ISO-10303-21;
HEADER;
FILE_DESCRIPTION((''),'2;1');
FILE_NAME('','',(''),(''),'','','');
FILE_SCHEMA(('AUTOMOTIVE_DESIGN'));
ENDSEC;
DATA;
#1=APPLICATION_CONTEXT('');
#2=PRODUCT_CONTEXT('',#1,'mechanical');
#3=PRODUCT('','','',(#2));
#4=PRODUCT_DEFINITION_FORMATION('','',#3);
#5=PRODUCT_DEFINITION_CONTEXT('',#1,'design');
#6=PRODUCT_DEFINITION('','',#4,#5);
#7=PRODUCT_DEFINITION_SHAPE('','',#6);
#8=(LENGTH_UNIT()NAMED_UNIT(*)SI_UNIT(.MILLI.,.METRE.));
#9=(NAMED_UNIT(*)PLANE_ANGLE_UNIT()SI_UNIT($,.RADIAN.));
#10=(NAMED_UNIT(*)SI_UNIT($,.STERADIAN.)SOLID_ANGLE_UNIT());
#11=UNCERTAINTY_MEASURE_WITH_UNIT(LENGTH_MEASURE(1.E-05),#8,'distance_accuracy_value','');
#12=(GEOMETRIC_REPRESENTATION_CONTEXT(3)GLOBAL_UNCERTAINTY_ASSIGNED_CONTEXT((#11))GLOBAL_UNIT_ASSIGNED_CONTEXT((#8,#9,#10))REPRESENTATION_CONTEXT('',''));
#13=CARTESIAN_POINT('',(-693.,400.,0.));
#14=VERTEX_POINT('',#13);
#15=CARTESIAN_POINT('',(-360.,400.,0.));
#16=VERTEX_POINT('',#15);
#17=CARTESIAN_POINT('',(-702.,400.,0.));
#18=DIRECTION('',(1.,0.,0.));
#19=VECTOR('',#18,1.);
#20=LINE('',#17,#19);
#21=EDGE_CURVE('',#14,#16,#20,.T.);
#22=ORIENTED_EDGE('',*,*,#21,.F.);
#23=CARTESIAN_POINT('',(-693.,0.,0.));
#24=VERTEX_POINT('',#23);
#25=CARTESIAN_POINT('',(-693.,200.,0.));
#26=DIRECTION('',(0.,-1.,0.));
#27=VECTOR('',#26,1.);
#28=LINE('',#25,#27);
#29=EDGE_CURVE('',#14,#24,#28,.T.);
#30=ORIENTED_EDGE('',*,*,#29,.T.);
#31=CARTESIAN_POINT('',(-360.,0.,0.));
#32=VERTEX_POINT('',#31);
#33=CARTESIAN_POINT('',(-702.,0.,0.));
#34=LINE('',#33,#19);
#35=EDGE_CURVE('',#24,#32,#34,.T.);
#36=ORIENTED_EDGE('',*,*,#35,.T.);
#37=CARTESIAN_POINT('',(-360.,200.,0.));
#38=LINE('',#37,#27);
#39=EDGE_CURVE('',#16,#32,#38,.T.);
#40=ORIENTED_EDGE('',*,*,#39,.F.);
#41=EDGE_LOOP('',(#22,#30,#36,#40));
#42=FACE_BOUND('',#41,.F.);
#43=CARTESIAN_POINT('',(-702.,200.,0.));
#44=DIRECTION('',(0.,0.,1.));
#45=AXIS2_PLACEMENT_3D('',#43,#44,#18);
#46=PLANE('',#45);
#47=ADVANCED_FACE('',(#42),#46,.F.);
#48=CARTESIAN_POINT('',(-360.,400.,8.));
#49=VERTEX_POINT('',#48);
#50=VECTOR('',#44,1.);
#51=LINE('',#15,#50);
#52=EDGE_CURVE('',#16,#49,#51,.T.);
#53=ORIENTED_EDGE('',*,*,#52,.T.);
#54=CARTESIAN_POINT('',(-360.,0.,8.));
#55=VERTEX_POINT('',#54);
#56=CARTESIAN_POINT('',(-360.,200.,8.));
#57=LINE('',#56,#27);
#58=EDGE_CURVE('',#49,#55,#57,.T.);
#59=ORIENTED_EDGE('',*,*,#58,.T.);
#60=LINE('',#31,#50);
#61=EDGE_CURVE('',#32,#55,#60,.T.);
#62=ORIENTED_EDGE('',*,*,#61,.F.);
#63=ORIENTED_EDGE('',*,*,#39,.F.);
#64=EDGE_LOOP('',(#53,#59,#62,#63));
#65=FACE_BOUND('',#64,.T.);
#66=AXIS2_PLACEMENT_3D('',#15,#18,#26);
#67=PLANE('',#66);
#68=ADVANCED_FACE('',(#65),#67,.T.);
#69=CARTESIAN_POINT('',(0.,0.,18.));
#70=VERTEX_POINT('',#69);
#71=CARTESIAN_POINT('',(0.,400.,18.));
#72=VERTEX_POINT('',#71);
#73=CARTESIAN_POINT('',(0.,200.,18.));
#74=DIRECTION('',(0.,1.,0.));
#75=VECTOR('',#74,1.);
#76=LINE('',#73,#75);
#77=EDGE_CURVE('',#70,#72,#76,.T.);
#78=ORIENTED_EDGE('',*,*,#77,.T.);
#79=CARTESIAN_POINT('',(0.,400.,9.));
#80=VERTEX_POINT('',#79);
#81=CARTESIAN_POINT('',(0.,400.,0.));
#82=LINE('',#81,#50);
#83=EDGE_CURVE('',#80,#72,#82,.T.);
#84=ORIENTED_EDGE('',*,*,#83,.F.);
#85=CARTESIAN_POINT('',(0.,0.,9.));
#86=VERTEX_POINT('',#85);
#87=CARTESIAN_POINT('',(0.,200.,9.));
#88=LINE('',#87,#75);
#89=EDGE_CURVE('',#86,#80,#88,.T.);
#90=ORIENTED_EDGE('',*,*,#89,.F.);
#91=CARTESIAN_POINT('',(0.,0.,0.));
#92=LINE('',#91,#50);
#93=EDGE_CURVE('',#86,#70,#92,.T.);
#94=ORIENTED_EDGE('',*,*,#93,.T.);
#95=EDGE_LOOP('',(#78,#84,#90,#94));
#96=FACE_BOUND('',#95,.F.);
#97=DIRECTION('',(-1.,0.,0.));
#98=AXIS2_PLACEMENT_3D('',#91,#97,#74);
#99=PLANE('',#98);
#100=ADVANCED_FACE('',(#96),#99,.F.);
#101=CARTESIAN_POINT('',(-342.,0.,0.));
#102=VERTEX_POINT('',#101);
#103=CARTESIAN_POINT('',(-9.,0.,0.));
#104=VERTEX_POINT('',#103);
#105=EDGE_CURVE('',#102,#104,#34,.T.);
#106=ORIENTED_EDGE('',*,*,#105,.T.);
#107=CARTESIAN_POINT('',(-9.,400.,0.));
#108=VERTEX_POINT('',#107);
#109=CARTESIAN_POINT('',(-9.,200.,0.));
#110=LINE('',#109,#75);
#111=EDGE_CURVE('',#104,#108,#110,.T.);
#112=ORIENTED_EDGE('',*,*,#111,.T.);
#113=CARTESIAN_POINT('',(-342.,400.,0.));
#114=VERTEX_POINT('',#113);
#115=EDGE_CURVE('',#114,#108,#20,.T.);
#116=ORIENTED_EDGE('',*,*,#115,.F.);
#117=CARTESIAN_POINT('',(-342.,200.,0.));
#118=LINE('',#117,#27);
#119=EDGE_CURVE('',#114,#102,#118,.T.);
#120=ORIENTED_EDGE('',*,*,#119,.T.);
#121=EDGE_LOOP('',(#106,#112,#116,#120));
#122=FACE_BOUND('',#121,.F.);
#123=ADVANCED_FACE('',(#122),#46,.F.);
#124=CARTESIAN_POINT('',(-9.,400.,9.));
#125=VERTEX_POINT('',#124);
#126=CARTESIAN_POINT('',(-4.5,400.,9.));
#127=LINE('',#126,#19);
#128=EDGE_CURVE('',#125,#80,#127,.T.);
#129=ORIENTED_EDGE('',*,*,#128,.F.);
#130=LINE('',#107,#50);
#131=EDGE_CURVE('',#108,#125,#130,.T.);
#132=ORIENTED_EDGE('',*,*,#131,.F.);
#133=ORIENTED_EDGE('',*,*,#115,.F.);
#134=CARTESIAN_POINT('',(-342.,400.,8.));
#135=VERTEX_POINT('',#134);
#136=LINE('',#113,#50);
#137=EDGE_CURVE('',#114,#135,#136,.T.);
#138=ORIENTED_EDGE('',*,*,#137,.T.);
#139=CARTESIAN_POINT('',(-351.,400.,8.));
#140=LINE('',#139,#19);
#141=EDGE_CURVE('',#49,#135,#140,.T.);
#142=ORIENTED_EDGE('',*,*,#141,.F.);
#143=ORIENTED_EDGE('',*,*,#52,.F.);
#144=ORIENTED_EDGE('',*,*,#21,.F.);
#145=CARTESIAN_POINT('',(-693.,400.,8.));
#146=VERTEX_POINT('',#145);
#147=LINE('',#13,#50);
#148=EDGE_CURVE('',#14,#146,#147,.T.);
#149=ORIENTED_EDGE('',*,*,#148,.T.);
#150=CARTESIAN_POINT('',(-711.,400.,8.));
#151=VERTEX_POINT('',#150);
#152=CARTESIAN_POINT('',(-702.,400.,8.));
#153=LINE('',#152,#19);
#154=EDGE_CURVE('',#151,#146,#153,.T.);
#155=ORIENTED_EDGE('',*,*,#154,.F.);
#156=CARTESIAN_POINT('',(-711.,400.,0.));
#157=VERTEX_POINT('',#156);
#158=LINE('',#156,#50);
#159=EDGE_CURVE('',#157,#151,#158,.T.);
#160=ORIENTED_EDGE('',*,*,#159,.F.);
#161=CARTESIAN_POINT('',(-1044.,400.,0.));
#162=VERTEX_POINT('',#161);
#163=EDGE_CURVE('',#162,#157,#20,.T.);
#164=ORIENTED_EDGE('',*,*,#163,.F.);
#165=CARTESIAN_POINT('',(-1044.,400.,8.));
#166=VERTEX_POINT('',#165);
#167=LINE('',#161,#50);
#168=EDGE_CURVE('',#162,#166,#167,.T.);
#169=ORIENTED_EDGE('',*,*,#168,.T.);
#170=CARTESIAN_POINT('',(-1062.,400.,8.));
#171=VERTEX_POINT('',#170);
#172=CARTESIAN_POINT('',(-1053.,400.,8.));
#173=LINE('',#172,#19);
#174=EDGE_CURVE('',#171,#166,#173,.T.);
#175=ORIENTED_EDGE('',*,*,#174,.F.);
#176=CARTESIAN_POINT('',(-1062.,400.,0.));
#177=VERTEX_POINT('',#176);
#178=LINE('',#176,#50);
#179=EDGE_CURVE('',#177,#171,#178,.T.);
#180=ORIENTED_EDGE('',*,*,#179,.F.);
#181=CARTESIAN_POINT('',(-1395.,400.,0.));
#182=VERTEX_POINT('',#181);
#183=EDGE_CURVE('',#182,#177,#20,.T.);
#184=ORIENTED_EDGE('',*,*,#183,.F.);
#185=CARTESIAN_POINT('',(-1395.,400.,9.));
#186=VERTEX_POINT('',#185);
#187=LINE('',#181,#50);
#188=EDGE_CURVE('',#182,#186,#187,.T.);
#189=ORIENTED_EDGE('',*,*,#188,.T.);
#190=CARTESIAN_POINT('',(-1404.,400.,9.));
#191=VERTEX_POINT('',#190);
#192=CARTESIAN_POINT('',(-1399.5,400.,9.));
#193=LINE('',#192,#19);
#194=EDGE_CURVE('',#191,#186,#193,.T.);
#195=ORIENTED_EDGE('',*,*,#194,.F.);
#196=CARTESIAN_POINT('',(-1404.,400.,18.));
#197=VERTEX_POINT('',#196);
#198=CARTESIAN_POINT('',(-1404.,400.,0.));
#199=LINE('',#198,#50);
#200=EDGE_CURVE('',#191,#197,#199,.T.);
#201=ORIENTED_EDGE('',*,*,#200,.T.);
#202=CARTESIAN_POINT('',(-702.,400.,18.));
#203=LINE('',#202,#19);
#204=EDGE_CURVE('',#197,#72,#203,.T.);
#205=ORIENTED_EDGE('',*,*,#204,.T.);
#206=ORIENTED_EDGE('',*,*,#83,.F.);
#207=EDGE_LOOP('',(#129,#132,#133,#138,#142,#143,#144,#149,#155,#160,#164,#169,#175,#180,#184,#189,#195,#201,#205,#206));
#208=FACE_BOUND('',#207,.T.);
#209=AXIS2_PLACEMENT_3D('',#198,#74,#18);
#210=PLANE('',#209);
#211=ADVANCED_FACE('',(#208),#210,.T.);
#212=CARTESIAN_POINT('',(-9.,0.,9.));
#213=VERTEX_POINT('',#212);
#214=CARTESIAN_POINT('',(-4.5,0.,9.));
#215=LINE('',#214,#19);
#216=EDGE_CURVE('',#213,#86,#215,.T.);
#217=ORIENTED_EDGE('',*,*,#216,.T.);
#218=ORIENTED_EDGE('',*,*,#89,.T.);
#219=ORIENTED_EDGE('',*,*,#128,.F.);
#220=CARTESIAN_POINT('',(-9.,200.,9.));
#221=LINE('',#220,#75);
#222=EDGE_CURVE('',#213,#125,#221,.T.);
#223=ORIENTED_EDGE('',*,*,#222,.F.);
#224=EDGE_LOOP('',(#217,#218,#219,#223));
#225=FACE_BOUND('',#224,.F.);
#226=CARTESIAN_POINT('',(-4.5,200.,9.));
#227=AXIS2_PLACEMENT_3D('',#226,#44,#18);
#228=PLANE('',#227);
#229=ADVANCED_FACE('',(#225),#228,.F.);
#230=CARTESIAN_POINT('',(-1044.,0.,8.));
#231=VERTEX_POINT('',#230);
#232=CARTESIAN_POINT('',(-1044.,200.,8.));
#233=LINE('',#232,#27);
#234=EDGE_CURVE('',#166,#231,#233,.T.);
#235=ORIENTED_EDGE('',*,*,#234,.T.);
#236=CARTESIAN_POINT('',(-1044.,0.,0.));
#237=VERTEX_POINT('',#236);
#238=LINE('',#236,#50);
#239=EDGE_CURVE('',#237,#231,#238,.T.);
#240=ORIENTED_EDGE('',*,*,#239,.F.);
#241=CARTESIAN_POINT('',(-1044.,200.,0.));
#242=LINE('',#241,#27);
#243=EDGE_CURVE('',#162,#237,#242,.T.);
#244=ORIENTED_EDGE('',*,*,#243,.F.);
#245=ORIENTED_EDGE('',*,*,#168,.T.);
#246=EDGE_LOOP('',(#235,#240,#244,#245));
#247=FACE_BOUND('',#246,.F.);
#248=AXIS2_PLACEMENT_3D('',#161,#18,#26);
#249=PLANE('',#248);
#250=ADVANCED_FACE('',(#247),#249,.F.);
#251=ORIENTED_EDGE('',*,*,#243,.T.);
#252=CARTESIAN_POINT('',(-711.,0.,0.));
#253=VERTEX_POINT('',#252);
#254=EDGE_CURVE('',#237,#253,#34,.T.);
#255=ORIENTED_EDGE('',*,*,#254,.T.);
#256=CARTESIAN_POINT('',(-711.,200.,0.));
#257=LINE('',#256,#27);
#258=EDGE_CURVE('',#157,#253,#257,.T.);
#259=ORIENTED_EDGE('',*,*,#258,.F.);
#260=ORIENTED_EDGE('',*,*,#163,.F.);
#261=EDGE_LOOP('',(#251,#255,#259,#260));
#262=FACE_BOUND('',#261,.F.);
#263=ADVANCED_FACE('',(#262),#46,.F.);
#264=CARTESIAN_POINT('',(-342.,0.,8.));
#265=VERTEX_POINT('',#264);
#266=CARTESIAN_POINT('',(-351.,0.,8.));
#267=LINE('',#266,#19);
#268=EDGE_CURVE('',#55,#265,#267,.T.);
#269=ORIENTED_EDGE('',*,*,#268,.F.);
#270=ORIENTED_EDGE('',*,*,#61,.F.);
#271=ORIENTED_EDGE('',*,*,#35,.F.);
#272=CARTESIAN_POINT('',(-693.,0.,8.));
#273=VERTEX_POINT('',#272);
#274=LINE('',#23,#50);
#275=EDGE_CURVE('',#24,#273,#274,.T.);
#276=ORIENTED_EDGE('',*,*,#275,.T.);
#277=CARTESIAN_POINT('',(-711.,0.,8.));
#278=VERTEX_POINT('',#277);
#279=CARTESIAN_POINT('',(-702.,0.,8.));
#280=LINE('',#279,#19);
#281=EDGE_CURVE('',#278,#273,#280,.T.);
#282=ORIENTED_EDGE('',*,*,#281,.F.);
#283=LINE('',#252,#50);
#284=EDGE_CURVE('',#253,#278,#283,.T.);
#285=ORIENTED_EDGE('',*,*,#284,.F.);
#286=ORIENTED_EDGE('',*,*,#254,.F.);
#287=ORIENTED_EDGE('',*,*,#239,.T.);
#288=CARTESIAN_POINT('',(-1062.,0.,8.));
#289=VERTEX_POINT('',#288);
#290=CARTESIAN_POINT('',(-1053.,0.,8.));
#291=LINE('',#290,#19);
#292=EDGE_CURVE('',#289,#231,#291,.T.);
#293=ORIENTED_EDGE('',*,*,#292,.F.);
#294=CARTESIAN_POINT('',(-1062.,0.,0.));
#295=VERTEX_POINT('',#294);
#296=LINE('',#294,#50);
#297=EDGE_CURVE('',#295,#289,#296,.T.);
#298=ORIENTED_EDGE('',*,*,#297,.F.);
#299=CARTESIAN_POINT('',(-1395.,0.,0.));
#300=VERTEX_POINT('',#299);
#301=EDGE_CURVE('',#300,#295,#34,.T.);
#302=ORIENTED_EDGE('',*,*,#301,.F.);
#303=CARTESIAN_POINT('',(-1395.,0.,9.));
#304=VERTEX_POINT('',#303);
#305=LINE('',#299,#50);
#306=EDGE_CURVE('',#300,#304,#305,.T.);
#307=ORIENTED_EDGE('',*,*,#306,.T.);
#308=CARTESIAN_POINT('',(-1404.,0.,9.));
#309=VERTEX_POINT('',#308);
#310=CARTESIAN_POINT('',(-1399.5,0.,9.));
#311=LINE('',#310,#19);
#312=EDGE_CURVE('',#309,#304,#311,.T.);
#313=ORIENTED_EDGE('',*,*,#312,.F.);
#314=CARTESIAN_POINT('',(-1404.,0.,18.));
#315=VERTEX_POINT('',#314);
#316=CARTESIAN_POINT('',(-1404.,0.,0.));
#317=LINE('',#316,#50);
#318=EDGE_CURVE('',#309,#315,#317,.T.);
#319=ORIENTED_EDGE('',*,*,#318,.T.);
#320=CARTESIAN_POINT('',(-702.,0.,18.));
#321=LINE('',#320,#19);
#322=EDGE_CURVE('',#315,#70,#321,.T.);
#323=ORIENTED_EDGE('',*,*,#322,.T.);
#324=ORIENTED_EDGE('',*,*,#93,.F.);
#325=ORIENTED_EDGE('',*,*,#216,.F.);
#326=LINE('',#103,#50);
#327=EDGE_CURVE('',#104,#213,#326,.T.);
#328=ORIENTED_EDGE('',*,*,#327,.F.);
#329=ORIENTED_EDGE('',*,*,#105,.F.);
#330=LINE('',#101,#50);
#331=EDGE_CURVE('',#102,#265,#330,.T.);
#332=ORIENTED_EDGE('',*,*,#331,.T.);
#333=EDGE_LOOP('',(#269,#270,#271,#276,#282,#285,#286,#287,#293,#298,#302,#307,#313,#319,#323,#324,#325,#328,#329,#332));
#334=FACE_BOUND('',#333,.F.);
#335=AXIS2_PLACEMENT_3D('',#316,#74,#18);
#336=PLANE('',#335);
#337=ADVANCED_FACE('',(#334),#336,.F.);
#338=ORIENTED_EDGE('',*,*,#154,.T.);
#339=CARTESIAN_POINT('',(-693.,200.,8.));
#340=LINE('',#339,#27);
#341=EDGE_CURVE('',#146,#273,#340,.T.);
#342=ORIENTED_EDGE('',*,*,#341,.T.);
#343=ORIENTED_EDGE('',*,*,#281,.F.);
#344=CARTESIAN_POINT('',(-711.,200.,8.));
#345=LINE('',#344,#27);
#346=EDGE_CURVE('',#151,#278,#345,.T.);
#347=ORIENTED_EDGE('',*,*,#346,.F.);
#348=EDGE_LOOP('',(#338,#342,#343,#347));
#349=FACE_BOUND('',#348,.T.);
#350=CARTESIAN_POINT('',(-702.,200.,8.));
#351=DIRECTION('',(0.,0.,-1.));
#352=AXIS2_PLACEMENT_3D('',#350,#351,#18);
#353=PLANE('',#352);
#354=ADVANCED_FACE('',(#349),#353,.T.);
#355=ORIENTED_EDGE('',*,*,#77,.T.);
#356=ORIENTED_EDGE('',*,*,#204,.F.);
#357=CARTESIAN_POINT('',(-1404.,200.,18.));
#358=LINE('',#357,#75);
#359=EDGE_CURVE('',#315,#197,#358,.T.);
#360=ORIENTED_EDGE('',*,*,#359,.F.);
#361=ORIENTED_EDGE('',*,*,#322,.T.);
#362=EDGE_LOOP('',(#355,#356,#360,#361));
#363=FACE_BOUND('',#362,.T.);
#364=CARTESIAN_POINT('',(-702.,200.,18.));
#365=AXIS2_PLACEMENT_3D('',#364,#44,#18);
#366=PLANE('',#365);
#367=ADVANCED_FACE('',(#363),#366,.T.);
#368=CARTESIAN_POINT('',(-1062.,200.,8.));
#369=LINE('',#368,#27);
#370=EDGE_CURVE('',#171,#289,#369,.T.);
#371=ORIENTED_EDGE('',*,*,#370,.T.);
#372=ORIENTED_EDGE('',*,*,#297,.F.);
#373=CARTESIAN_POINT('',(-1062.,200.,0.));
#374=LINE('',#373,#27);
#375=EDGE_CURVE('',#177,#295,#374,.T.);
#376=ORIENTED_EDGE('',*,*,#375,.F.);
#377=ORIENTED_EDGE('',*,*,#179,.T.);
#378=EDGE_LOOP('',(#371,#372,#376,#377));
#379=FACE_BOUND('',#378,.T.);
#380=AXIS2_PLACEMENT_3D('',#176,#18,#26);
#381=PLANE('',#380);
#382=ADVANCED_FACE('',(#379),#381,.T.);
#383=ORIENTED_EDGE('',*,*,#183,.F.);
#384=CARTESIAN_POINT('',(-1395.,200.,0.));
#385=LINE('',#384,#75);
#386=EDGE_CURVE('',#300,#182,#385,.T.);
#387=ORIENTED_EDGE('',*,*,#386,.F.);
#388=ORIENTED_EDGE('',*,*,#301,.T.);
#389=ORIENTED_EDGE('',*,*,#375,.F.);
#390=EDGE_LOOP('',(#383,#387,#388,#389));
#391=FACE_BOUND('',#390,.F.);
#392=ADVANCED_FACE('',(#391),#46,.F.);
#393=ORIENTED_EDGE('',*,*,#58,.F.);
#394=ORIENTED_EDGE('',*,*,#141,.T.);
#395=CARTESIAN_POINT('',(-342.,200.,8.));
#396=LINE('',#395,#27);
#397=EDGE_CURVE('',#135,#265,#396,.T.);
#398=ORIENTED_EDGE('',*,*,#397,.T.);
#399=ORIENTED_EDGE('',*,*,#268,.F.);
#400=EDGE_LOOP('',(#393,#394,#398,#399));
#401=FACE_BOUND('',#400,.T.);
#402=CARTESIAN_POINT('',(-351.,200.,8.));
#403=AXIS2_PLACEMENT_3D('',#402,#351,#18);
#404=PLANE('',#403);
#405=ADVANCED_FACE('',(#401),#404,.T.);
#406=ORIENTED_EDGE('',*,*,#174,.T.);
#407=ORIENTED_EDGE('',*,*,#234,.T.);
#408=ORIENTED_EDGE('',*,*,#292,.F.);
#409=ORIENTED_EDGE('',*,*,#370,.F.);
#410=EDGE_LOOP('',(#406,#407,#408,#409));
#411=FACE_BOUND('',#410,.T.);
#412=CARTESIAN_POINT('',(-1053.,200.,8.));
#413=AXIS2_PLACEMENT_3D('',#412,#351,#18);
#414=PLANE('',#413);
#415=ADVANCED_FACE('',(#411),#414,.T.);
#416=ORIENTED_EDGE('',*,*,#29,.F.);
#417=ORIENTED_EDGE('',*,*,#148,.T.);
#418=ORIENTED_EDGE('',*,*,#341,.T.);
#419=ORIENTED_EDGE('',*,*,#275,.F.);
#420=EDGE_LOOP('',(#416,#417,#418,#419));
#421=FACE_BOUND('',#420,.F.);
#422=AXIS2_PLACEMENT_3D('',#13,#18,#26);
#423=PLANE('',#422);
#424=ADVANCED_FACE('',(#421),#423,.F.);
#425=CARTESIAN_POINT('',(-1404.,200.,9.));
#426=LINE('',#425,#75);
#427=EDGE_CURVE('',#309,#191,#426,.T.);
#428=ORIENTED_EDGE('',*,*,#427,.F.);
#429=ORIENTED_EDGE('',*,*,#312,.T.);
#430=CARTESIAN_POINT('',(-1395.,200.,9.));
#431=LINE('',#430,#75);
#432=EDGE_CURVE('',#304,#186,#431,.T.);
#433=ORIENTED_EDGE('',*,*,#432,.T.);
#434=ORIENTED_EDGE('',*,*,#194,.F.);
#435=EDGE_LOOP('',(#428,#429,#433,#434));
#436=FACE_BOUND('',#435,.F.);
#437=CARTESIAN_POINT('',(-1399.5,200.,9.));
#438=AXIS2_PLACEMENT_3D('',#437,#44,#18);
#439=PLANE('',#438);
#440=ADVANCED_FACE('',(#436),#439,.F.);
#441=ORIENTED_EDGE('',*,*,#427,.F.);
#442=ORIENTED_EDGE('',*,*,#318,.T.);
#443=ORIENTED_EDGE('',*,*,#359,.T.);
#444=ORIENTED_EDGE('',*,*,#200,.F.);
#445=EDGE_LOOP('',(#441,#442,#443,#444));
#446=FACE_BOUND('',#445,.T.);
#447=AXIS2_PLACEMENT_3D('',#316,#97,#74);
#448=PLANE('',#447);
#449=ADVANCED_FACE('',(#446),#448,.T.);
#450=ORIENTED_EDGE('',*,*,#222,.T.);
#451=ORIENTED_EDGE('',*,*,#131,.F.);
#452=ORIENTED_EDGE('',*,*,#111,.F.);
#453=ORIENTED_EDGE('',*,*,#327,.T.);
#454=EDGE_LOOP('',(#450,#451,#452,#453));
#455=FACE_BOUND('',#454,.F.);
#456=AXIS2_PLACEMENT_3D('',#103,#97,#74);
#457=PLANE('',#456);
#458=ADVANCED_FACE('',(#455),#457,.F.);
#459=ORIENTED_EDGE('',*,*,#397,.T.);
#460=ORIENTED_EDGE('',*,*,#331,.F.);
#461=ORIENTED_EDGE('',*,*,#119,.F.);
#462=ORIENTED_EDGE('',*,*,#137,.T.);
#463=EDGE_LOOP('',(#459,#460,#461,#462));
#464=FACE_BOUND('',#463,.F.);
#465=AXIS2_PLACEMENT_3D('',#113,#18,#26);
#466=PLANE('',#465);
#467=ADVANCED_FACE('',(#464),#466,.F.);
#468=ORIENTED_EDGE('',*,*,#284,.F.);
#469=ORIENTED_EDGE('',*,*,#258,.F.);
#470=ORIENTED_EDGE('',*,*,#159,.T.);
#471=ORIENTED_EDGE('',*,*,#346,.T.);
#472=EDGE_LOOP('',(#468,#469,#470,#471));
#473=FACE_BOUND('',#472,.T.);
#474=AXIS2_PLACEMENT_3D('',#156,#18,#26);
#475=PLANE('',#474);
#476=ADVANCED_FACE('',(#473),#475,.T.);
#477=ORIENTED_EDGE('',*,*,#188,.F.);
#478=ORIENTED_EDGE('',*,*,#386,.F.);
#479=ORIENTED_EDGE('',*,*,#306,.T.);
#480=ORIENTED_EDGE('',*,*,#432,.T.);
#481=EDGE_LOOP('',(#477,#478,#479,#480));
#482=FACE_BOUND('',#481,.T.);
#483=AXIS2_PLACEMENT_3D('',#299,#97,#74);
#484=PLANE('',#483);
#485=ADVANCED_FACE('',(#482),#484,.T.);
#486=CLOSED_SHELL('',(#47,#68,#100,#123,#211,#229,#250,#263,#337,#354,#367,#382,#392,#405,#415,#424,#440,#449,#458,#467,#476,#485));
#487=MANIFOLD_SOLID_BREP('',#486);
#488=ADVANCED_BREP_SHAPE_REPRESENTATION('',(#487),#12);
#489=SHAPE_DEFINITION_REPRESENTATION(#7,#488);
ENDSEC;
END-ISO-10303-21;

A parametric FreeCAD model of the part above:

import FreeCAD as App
import Part
import Sketcher


def add_polygon(sketch, points):
    """Adds a closed chain of lines whose ends are joined by coincident constraints."""
    first, n = sketch.GeometryCount, len(points)
    for a, b in zip(points, points[1:] + points[:1]):
        sketch.addGeometry(Part.LineSegment(App.Vector(*a, 0), App.Vector(*b, 0)), False)
    for i in range(n):
        sketch.addConstraint(Sketcher.Constraint("Coincident", first + i, 2, first + (i + 1) % n, 1))

doc = App.newDocument("Part")
body = doc.addObject("PartDesign::Body", "Body")

sketch1 = body.newObject("Sketcher::SketchObject", "Sketch")
sketch1.AttachmentSupport = (doc.getObject("XY_Plane"), [""])
sketch1.MapMode = "FlatFace"
add_polygon(sketch1, [(-1404, 400), (-1404, 0), (0, 0), (0, 400)])
sketch1.addConstraint([
    Sketcher.Constraint("Vertical", 0),
    Sketcher.Constraint("Horizontal", 1),
    Sketcher.Constraint("Vertical", 2),
    Sketcher.Constraint("Horizontal", 3),
    Sketcher.Constraint("Coincident", 1, 2, -1, 1),
    Sketcher.Constraint("DistanceX", 1, 1, 1, 2, 1404.0),
    Sketcher.Constraint("DistanceY", 0, 2, 0, 1, 400.0),
])
pad1 = body.newObject("PartDesign::Pad", "Pad")
pad1.Profile = sketch1
pad1.Length = 18

sketch2 = body.newObject("Sketcher::SketchObject", "Sketch001")
sketch2.AttachmentSupport = (doc.getObject("XY_Plane"), [""])
sketch2.MapMode = "FlatFace"
add_polygon(sketch2, [(-9, 400), (-9, 0), (0, 0), (0, 400)])
add_polygon(sketch2, [(-1404, 400), (-1404, 0), (-1395, 0), (-1395, 400)])
sketch2.addConstraint([
    Sketcher.Constraint("Vertical", 0),
    Sketcher.Constraint("Horizontal", 1),
    Sketcher.Constraint("Vertical", 2),
    Sketcher.Constraint("Horizontal", 3),
    Sketcher.Constraint("Vertical", 4),
    Sketcher.Constraint("Horizontal", 5),
    Sketcher.Constraint("Vertical", 6),
    Sketcher.Constraint("Horizontal", 7),
    Sketcher.Constraint("Coincident", 1, 2, -1, 1),
    Sketcher.Constraint("PointOnObject", 4, 2, -1),
    Sketcher.Constraint("Horizontal", 3, 2, 6, 2),
    Sketcher.Constraint("Equal", 3, 5),
    Sketcher.Constraint("DistanceX", 1, 1, 1, 2, 9.0),
    Sketcher.Constraint("DistanceY", 0, 2, 0, 1, 400.0),
    Sketcher.Constraint("DistanceX", 4, 2, -1, 1, 1404.0),
])
pocket1 = body.newObject("PartDesign::Pocket", "Pocket")
pocket1.Profile = sketch2
pocket1.Length = 9
pocket1.Reversed = True

sketch3 = body.newObject("Sketcher::SketchObject", "Sketch002")
sketch3.AttachmentSupport = (doc.getObject("XY_Plane"), [""])
sketch3.MapMode = "FlatFace"
add_polygon(sketch3, [(-360, 0), (-360, 400), (-342, 400), (-342, 0)])
add_polygon(sketch3, [(-711, 0), (-711, 400), (-693, 400), (-693, 0)])
add_polygon(sketch3, [(-1062, 0), (-1062, 400), (-1044, 400), (-1044, 0)])
sketch3.addConstraint([
    Sketcher.Constraint("Vertical", 0),
    Sketcher.Constraint("Horizontal", 1),
    Sketcher.Constraint("Vertical", 2),
    Sketcher.Constraint("Horizontal", 3),
    Sketcher.Constraint("Vertical", 4),
    Sketcher.Constraint("Horizontal", 5),
    Sketcher.Constraint("Vertical", 6),
    Sketcher.Constraint("Horizontal", 7),
    Sketcher.Constraint("Vertical", 8),
    Sketcher.Constraint("Horizontal", 9),
    Sketcher.Constraint("Vertical", 10),
    Sketcher.Constraint("Horizontal", 11),
    Sketcher.Constraint("PointOnObject", 2, 2, -1),
    Sketcher.Constraint("PointOnObject", 6, 2, -1),
    Sketcher.Constraint("PointOnObject", 10, 2, -1),
    Sketcher.Constraint("Horizontal", 1, 2, 4, 2),
    Sketcher.Constraint("Horizontal", 5, 2, 8, 2),
    Sketcher.Constraint("Equal", 3, 5),
    Sketcher.Constraint("Equal", 7, 9),
    Sketcher.Constraint("DistanceX", 1, 1, 1, 2, 18.0),
    Sketcher.Constraint("DistanceY", 0, 1, 0, 2, 400.0),
    Sketcher.Constraint("DistanceX", 0, 2, -1, 1, 360.0),
    Sketcher.Constraint("DistanceX", 4, 2, -1, 1, 711.0),
    Sketcher.Constraint("DistanceX", 8, 2, -1, 1, 1062.0),
])
pocket2 = body.newObject("PartDesign::Pocket", "Pocket001")
pocket2.Profile = sketch3
pocket2.Length = 8
pocket2.Reversed = True

doc.recompute()
